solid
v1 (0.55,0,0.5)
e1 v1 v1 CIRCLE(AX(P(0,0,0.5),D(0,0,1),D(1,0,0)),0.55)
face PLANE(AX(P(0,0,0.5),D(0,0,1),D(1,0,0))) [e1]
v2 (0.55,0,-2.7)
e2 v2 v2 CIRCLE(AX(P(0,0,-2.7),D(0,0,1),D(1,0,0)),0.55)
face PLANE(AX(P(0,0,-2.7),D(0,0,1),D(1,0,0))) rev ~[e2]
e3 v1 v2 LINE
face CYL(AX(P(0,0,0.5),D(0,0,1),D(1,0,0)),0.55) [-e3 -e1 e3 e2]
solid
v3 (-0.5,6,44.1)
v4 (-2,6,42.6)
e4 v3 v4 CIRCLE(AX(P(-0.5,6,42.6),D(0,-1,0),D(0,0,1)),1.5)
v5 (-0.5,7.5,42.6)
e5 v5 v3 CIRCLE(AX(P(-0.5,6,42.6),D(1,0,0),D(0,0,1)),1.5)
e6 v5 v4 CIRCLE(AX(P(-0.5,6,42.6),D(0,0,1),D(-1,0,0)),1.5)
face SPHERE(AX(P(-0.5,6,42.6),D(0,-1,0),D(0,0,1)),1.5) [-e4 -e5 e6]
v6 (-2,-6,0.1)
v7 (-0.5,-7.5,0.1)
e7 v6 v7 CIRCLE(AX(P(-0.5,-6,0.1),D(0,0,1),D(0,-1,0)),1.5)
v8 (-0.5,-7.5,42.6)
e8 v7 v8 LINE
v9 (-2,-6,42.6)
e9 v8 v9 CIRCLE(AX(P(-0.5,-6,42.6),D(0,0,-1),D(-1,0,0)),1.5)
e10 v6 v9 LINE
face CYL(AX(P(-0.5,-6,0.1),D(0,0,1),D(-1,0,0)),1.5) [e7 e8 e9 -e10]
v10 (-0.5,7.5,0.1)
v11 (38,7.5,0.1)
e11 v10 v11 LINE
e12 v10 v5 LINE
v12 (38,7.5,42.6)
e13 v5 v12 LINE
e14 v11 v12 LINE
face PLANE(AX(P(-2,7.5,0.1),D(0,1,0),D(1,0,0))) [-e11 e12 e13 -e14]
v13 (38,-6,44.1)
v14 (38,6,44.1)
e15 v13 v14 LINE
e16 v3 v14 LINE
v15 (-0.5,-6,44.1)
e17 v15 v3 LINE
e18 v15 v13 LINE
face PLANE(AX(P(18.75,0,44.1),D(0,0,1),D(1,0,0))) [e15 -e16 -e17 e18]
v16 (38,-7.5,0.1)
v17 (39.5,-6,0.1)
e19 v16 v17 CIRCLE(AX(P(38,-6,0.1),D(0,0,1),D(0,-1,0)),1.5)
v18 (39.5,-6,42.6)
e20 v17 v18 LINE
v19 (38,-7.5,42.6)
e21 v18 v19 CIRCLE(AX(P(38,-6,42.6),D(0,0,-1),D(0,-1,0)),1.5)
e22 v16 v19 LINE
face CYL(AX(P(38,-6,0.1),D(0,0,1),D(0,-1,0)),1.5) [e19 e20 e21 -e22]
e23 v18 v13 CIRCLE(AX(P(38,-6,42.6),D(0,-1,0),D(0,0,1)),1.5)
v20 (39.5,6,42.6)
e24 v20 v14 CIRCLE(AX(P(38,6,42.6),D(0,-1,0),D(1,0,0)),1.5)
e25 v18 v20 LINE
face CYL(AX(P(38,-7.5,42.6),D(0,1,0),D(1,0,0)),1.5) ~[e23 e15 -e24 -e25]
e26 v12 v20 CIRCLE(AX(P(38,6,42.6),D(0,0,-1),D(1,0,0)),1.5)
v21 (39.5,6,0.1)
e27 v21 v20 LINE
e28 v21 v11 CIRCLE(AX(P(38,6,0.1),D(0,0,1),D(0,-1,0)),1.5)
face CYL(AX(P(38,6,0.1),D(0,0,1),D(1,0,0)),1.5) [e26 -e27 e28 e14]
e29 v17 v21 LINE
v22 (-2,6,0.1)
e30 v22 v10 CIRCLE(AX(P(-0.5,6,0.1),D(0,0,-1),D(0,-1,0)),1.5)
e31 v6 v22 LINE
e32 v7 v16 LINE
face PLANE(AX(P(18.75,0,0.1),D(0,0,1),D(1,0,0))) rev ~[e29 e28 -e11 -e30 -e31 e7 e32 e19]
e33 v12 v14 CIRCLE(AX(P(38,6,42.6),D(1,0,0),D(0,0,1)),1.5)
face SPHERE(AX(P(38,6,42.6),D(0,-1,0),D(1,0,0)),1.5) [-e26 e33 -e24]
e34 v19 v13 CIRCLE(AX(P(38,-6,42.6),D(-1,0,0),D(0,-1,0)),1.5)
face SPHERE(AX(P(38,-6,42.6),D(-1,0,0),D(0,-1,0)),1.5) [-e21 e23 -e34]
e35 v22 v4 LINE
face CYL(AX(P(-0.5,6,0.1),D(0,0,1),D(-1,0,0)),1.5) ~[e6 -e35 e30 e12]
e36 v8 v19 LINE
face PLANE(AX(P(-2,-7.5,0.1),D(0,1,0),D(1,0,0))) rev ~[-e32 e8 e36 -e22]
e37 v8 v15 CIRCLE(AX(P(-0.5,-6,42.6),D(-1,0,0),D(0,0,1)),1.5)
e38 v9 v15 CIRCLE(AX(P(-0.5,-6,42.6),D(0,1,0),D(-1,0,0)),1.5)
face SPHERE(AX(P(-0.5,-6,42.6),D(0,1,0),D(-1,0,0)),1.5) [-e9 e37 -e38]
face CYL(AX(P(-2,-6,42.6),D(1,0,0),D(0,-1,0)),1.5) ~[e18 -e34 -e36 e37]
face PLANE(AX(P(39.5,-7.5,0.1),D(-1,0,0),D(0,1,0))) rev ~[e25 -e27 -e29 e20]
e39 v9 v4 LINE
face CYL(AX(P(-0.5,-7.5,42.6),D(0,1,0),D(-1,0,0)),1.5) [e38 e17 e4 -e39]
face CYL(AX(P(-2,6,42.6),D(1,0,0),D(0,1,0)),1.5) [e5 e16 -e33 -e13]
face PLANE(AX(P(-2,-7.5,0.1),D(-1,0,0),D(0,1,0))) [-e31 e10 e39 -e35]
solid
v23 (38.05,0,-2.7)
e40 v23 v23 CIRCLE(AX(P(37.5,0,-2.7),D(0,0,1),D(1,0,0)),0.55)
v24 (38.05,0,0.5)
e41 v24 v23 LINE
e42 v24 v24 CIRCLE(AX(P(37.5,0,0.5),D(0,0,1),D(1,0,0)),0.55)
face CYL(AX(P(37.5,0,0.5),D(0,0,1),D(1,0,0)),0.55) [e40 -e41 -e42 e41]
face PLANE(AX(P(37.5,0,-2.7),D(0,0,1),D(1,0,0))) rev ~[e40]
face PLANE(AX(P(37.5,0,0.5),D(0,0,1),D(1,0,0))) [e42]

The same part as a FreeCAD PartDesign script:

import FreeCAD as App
import Part
import Sketcher
from FreeCAD import Vector
Q = App.Units.Quantity


def edges_at(feature, points):
    """Names of the edges that pass closest to the given points."""
    edges = feature.Shape.Edges
    near = lambda p: min(range(len(edges)), key=lambda i: edges[i].distToShape(Part.Vertex(*p))[0])
    return sorted({f"Edge{near(p) + 1}" for p in points})


def add_polygon(sketch, points):
    """Adds a closed chain of lines whose ends are joined by coincident constraints."""
    first, n = sketch.GeometryCount, len(points)
    for a, b in zip(points, points[1:] + points[:1]):
        sketch.addGeometry(Part.LineSegment(App.Vector(*a, 0), App.Vector(*b, 0)), False)
    for i in range(n):
        sketch.addConstraint(Sketcher.Constraint("Coincident", first + i, 2, first + (i + 1) % n, 1))

doc = App.newDocument("Part")
body = doc.addObject("PartDesign::Body", "Body")

sketch1 = doc.addObject("Sketcher::SketchObject", "Sketch")
body.addObject(sketch1)
sketch1.AttachmentSupport = (doc.XY_Plane, [""])
sketch1.MapMode = "FlatFace"
sketch1.AttachmentOffset = App.Placement(Vector(0, 0, 0.1), App.Rotation())
add_polygon(sketch1, [(-2, 8), (-2, -8), (40, -8), (40, 8)])
sketch1.addConstraint([
    Sketcher.Constraint("Vertical", 0),
    Sketcher.Constraint("Horizontal", 1),
    Sketcher.Constraint("Vertical", 2),
    Sketcher.Constraint("Horizontal", 3),
    Sketcher.Constraint("DistanceY", 0, 2, 0, 1, Q("15 mm")),
    Sketcher.Constraint("DistanceX", 1, 1, 1, 2, Q("41.5 mm")),
    Sketcher.Constraint("DistanceX", 0, 2, -1, 1, Q("2 mm")),
    Sketcher.Constraint("DistanceY", 0, 2, -1, 1, Q("7.5 mm")),
])
pad1 = doc.addObject("PartDesign::Pad", "Pad")
body.addObject(pad1)
pad1.Profile = sketch1
pad1.Length = 44
doc.recompute()

fillet = doc.addObject("PartDesign::Fillet", "Fillet")
body.addObject(fillet)
fillet.Base = (pad1, edges_at(pad1, [
    (-2, 0, 44.1),
    (-2, -7.5, 22.1),
    (18.75, -7.5, 44.1),
    (39.5, -7.5, 22.1),
    (39.5, 0, 44.1),
    (39.5, 7.5, 22.1),
    (18.75, 7.5, 44.1),
    (-2, 7.5, 22.1),
]))
fillet.Radius = 1.5
body2 = doc.addObject("PartDesign::Body", "Body001")
body2.AllowCompound = True

sketch2 = doc.addObject("Sketcher::SketchObject", "Sketch001")
body2.addObject(sketch2)
sketch2.AttachmentSupport = (doc.getObject("XY_Plane001"), [""])
sketch2.MapMode = "FlatFace"
sketch2.AttachmentOffset = App.Placement(Vector(0, 0, 0.5), App.Rotation())
sketch2.addGeometry([
    Part.Circle(Vector(0, 0, 0), Vector(0, 0, 1), 0.6),
    Part.Circle(Vector(37.5, 0, 0), Vector(0, 0, 1), 0.6),
], False)
sketch2.addConstraint([
    Sketcher.Constraint("Coincident", 0, 3, -1, 1),
    Sketcher.Constraint("Equal", 0, 1),
    Sketcher.Constraint("PointOnObject", 1, 3, -1),
    Sketcher.Constraint("Diameter", 0, Q("1.1 mm")),
    Sketcher.Constraint("DistanceX", -1, 1, 1, 3, Q("37.5 mm")),
])
pad2 = doc.addObject("PartDesign::Pad", "Pad001")
body2.addObject(pad2)
pad2.Profile = sketch2
pad2.Length = 3.2
pad2.Reversed = True

doc.recompute()
